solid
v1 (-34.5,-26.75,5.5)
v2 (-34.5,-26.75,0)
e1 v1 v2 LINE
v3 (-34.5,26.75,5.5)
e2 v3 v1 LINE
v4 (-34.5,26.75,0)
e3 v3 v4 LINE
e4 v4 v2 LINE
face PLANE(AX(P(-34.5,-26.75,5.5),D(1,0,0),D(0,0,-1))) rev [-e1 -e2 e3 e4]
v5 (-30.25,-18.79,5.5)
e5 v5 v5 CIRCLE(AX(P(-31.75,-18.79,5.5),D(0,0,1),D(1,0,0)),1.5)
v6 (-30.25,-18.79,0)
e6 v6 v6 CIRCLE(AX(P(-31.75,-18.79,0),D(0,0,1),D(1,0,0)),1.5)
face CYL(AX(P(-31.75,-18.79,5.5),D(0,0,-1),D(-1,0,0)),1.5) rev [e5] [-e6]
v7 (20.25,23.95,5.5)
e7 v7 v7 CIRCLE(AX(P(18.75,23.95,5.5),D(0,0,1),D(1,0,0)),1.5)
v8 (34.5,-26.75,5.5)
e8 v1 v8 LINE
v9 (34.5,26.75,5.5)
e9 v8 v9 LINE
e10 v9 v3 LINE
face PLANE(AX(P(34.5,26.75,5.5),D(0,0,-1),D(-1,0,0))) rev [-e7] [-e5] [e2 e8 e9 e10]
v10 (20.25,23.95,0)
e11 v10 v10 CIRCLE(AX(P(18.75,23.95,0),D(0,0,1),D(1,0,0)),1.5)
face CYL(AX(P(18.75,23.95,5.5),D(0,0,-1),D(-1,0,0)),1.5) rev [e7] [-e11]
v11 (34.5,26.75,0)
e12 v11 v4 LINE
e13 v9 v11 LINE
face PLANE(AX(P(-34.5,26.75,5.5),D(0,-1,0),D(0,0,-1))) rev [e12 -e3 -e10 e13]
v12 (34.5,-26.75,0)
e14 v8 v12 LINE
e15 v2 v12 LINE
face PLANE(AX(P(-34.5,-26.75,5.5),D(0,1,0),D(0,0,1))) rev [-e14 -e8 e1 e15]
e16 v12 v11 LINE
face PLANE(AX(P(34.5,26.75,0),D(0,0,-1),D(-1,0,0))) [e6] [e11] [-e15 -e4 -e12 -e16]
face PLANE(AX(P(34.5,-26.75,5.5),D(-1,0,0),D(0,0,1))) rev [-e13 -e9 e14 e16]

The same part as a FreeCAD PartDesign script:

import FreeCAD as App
import Part
import Sketcher
from FreeCAD import Vector
Q = App.Units.Quantity


def add_polygon(sketch, points):
    """Adds a closed chain of lines whose ends are joined by coincident constraints."""
    first, n = sketch.GeometryCount, len(points)
    for a, b in zip(points, points[1:] + points[:1]):
        sketch.addGeometry(Part.LineSegment(App.Vector(*a, 0), App.Vector(*b, 0)), False)
    for i in range(n):
        sketch.addConstraint(Sketcher.Constraint("Coincident", first + i, 2, first + (i + 1) % n, 1))

doc = App.newDocument("Part")
params = doc.addObject("Spreadsheet::Sheet", "Params")
for row, (alias, value) in enumerate([
    ("sketch1_diameter", "3 mm"),
    ("sketch1_width", "69 mm"),
    ("sketch1_height", "53.5 mm"),
    ("pad1_length", "5.5 mm"),
], start=1):
    params.set(f"A{row}", alias)
    params.set(f"B{row}", "=" + value)
    params.setAlias(f"B{row}", alias)

body = doc.addObject("PartDesign::Body", "Body")

sketch1 = body.newObject("Sketcher::SketchObject", "Sketch")
sketch1.AttachmentSupport = (doc.getObject("XY_Plane"), [""])
sketch1.MapMode = "FlatFace"
add_polygon(sketch1, [(-34.5, 26.8), (-34.5, -26.8), (34.5, -26.8), (34.5, 26.8)])
sketch1.addGeometry(Part.Circle(Vector(-31.8, -18.8, 0), Vector(0, 0, 1), 1.5), False)
sketch1.addGeometry(Part.Circle(Vector(18.8, 23.9, 0), Vector(0, 0, 1), 1.5), False)
sketch1.addConstraint([
    Sketcher.Constraint("Vertical", 0),
    Sketcher.Constraint("Horizontal", 1),
    Sketcher.Constraint("Vertical", 2),
    Sketcher.Constraint("Horizontal", 3),
    Sketcher.Constraint("Equal", 4, 5),
    Sketcher.Constraint("Symmetric", 0, 2, 2, 2, -1, 1),
    Sketcher.Constraint("Diameter", 4, Q("3 mm")),
    Sketcher.Constraint("DistanceX", 1, 1, 1, 2, Q("69 mm")),
    Sketcher.Constraint("DistanceY", 0, 2, 0, 1, Q("53.5 mm")),
    Sketcher.Constraint("DistanceX", 4, 3, 5, 3, Q("50.5 mm")),
    Sketcher.Constraint("DistanceY", 0, 2, 5, 3, Q("50.7 mm")),
    Sketcher.Constraint("DistanceX", 4, 3, -1, 1, Q("31.75 mm")),
    Sketcher.Constraint("DistanceY", 4, 3, -1, 1, Q("18.79 mm")),
])
sketch1.setExpression("Constraints[10]", "Params.sketch1_diameter")
sketch1.setExpression("Constraints[11]", "Params.sketch1_width")
sketch1.setExpression("Constraints[12]", "Params.sketch1_height")
pad1 = body.newObject("PartDesign::Pad", "Pad")
pad1.Profile = sketch1
pad1.setExpression("Length", "Params.pad1_length")

doc.recompute()
